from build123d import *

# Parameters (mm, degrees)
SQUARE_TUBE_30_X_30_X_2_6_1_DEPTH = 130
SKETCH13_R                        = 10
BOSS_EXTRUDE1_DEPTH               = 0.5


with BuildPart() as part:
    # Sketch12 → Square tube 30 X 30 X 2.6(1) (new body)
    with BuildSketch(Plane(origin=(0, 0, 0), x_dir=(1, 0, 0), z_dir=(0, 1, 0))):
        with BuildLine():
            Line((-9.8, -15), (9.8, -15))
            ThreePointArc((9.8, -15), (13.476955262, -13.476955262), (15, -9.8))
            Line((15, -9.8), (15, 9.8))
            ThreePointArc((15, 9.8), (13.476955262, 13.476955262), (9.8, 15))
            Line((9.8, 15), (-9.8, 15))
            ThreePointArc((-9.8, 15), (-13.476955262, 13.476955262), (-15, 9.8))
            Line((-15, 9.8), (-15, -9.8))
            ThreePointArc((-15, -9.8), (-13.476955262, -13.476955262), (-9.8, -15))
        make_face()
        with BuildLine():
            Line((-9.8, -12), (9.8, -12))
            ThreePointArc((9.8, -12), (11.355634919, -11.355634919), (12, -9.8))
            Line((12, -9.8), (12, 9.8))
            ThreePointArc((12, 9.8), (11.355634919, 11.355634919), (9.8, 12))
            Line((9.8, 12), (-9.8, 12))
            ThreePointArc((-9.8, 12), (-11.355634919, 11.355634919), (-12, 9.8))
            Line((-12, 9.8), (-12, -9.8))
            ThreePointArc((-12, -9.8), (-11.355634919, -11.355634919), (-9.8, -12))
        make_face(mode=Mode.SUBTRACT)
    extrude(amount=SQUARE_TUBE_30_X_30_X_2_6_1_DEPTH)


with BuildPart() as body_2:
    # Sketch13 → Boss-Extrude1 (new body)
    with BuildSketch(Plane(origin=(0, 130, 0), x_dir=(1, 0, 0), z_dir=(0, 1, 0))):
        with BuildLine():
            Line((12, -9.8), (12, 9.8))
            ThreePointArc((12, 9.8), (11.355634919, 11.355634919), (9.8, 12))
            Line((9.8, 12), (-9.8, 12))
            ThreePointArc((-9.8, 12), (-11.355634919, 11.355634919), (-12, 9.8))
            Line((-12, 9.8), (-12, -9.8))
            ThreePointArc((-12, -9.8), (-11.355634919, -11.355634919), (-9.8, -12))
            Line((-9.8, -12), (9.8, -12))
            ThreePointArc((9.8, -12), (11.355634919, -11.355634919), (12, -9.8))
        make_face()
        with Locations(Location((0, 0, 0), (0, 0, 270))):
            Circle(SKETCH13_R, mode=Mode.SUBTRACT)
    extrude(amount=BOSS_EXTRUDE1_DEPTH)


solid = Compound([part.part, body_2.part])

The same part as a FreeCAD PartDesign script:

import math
import FreeCAD as App
import Part
import Sketcher

V = App.Vector

doc = App.newDocument("Part")
body = doc.addObject("PartDesign::Body", "Body")

# Sketch on XZ plane
sketch1 = doc.addObject("Sketcher::SketchObject", "Sketch")
body.addObject(sketch1)
sketch1.AttachmentSupport = (doc.XZ_Plane, [""])
sketch1.MapMode = "FlatFace"
sketch1.addGeometry(Part.LineSegment(V(-9.8, 15, 0), V(9.8, 15, 0)), False)
sketch1.addGeometry(Part.ArcOfCircle(Part.Circle(V(9.8, 9.8, 0), V(0, 0, 1), 5.2), math.radians(0), math.radians(90)), False)
sketch1.addGeometry(Part.LineSegment(V(15, 9.8, 0), V(15, -9.8, 0)), False)
sketch1.addGeometry(Part.ArcOfCircle(Part.Circle(V(9.8, -9.8, 0), V(0, 0, 1), 5.2), math.radians(-90), math.radians(0)), False)
sketch1.addGeometry(Part.LineSegment(V(9.8, -15, 0), V(-9.8, -15, 0)), False)
sketch1.addGeometry(Part.ArcOfCircle(Part.Circle(V(-9.8, -9.8, 0), V(0, 0, 1), 5.2), math.radians(-180), math.radians(-90)), False)
sketch1.addGeometry(Part.LineSegment(V(-15, -9.8, 0), V(-15, 9.8, 0)), False)
sketch1.addGeometry(Part.ArcOfCircle(Part.Circle(V(-9.8, 9.8, 0), V(0, 0, 1), 5.2), math.radians(90), math.radians(180)), False)
sketch1.addGeometry(Part.LineSegment(V(9.8, 12, 0), V(-9.8, 12, 0)), False)
sketch1.addGeometry(Part.ArcOfCircle(Part.Circle(V(-9.8, 9.8, 0), V(0, 0, 1), 2.2), math.radians(90), math.radians(180)), False)
sketch1.addGeometry(Part.LineSegment(V(-12, 9.8, 0), V(-12, -9.8, 0)), False)
sketch1.addGeometry(Part.ArcOfCircle(Part.Circle(V(-9.8, -9.8, 0), V(0, 0, 1), 2.2), math.radians(180), math.radians(270)), False)
sketch1.addGeometry(Part.LineSegment(V(-9.8, -12, 0), V(9.8, -12, 0)), False)
sketch1.addGeometry(Part.ArcOfCircle(Part.Circle(V(9.8, -9.8, 0), V(0, 0, 1), 2.2), math.radians(-90), math.radians(0)), False)
sketch1.addGeometry(Part.LineSegment(V(12, -9.8, 0), V(12, 9.8, 0)), False)
sketch1.addGeometry(Part.ArcOfCircle(Part.Circle(V(9.8, 9.8, 0), V(0, 0, 1), 2.2), math.radians(0), math.radians(90)), False)
sketch1.addConstraint(Sketcher.Constraint("Tangent", 0, 2, 1, 2))
sketch1.addConstraint(Sketcher.Constraint("Tangent", 1, 1, 2, 1))
sketch1.addConstraint(Sketcher.Constraint("Tangent", 2, 2, 3, 2))
sketch1.addConstraint(Sketcher.Constraint("Tangent", 3, 1, 4, 1))
sketch1.addConstraint(Sketcher.Constraint("Tangent", 4, 2, 5, 2))
sketch1.addConstraint(Sketcher.Constraint("Tangent", 5, 1, 6, 1))
sketch1.addConstraint(Sketcher.Constraint("Tangent", 6, 2, 7, 2))
sketch1.addConstraint(Sketcher.Constraint("Tangent", 7, 1, 0, 1))
sketch1.addConstraint(Sketcher.Constraint("Tangent", 8, 2, 9, 1))
sketch1.addConstraint(Sketcher.Constraint("Tangent", 9, 2, 10, 1))
sketch1.addConstraint(Sketcher.Constraint("Tangent", 10, 2, 11, 1))
sketch1.addConstraint(Sketcher.Constraint("Tangent", 11, 2, 12, 1))
sketch1.addConstraint(Sketcher.Constraint("Tangent", 12, 2, 13, 1))
sketch1.addConstraint(Sketcher.Constraint("Tangent", 13, 2, 14, 1))
sketch1.addConstraint(Sketcher.Constraint("Tangent", 14, 2, 15, 1))
sketch1.addConstraint(Sketcher.Constraint("Tangent", 15, 2, 8, 1))
sketch1.addConstraint(Sketcher.Constraint("Horizontal", 0))
sketch1.addConstraint(Sketcher.Constraint("Vertical", 2))
sketch1.addConstraint(Sketcher.Constraint("Horizontal", 4))
sketch1.addConstraint(Sketcher.Constraint("Vertical", 6))
sketch1.addConstraint(Sketcher.Constraint("Horizontal", 8))
sketch1.addConstraint(Sketcher.Constraint("Vertical", 10))
sketch1.addConstraint(Sketcher.Constraint("Horizontal", 12))
sketch1.addConstraint(Sketcher.Constraint("Vertical", 14))
sketch1.addConstraint(Sketcher.Constraint("Coincident", 9, 3, 7, 3))
sketch1.addConstraint(Sketcher.Constraint("Coincident", 11, 3, 5, 3))
sketch1.addConstraint(Sketcher.Constraint("Coincident", 13, 3, 3, 3))
sketch1.addConstraint(Sketcher.Constraint("Equal", 1, 3))
sketch1.addConstraint(Sketcher.Constraint("Equal", 3, 5))
sketch1.addConstraint(Sketcher.Constraint("Equal", 5, 7))
sketch1.addConstraint(Sketcher.Constraint("Equal", 13, 15))
sketch1.addConstraint(Sketcher.Constraint("Symmetric", 1, 3, 5, 3, -1, 1))
sketch1.addConstraint(Sketcher.Constraint("Equal", 12, 2))
sketch1.addConstraint(Sketcher.Constraint("Radius", 1, 5.2))
sketch1.addConstraint(Sketcher.Constraint("Radius", 9, 2.2))
sketch1.addConstraint(Sketcher.Constraint("DistanceX", 0, 1, 0, 2, 19.6))
pad1 = doc.addObject("PartDesign::Pad", "Pad")
body.addObject(pad1)
pad1.Profile = sketch1
pad1.Length = 130
pad1.Reversed = True
body2 = doc.addObject("PartDesign::Body", "Body001")

# Sketch on XZ plane
sketch2 = doc.addObject("Sketcher::SketchObject", "Sketch001")
body2.addObject(sketch2)
sketch2.AttachmentSupport = (doc.getObject("XZ_Plane001"), [""])
sketch2.MapMode = "FlatFace"
sketch2.AttachmentOffset = App.Placement(V(0, 0, -130), App.Rotation())
sketch2.addGeometry(Part.LineSegment(V(12, 9.8, 0), V(12, -9.8, 0)), False)
sketch2.addGeometry(Part.ArcOfCircle(Part.Circle(V(9.8, -9.8, 0), V(0, 0, 1), 2.2), math.radians(-90), math.radians(0)), False)
sketch2.addGeometry(Part.LineSegment(V(9.8, -12, 0), V(-9.8, -12, 0)), False)
sketch2.addGeometry(Part.ArcOfCircle(Part.Circle(V(-9.8, -9.8, 0), V(0, 0, 1), 2.2), math.radians(180), math.radians(270)), False)
sketch2.addGeometry(Part.LineSegment(V(-12, -9.8, 0), V(-12, 9.8, 0)), False)
sketch2.addGeometry(Part.ArcOfCircle(Part.Circle(V(-9.8, 9.8, 0), V(0, 0, 1), 2.2), math.radians(90), math.radians(180)), False)
sketch2.addGeometry(Part.LineSegment(V(-9.8, 12, 0), V(9.8, 12, 0)), False)
sketch2.addGeometry(Part.ArcOfCircle(Part.Circle(V(9.8, 9.8, 0), V(0, 0, 1), 2.2), math.radians(0), math.radians(90)), False)
sketch2.addGeometry(Part.Circle(V(0, 0, 0), V(0, 0, 1), 10), False)
sketch2.addConstraint(Sketcher.Constraint("Tangent", 0, 2, 1, 2))
sketch2.addConstraint(Sketcher.Constraint("Tangent", 1, 1, 2, 1))
sketch2.addConstraint(Sketcher.Constraint("Tangent", 2, 2, 3, 2))
sketch2.addConstraint(Sketcher.Constraint("Tangent", 3, 1, 4, 1))
sketch2.addConstraint(Sketcher.Constraint("Tangent", 4, 2, 5, 2))
sketch2.addConstraint(Sketcher.Constraint("Tangent", 5, 1, 6, 1))
sketch2.addConstraint(Sketcher.Constraint("Tangent", 6, 2, 7, 2))
sketch2.addConstraint(Sketcher.Constraint("Tangent", 7, 1, 0, 1))
sketch2.addConstraint(Sketcher.Constraint("Vertical", 0))
sketch2.addConstraint(Sketcher.Constraint("Horizontal", 2))
sketch2.addConstraint(Sketcher.Constraint("Vertical", 4))
sketch2.addConstraint(Sketcher.Constraint("Horizontal", 6))
sketch2.addConstraint(Sketcher.Constraint("Coincident", 8, 3, -1, 1))
sketch2.addConstraint(Sketcher.Constraint("Equal", 1, 3))
sketch2.addConstraint(Sketcher.Constraint("Equal", 3, 5))
sketch2.addConstraint(Sketcher.Constraint("Equal", 5, 7))
sketch2.addConstraint(Sketcher.Constraint("Symmetric", 1, 3, 5, 3, -1, 1))
sketch2.addConstraint(Sketcher.Constraint("Equal", 6, 0))
sketch2.addConstraint(Sketcher.Constraint("Diameter", 8, 20.0))
sketch2.addConstraint(Sketcher.Constraint("Radius", 1, 2.2))
sketch2.addConstraint(Sketcher.Constraint("DistanceX", 2, 2, 2, 1, 19.6))
pad2 = doc.addObject("PartDesign::Pad", "Pad001")
body2.addObject(pad2)
pad2.Profile = sketch2
pad2.Length = 0.5
pad2.Reversed = True

doc.recompute()
